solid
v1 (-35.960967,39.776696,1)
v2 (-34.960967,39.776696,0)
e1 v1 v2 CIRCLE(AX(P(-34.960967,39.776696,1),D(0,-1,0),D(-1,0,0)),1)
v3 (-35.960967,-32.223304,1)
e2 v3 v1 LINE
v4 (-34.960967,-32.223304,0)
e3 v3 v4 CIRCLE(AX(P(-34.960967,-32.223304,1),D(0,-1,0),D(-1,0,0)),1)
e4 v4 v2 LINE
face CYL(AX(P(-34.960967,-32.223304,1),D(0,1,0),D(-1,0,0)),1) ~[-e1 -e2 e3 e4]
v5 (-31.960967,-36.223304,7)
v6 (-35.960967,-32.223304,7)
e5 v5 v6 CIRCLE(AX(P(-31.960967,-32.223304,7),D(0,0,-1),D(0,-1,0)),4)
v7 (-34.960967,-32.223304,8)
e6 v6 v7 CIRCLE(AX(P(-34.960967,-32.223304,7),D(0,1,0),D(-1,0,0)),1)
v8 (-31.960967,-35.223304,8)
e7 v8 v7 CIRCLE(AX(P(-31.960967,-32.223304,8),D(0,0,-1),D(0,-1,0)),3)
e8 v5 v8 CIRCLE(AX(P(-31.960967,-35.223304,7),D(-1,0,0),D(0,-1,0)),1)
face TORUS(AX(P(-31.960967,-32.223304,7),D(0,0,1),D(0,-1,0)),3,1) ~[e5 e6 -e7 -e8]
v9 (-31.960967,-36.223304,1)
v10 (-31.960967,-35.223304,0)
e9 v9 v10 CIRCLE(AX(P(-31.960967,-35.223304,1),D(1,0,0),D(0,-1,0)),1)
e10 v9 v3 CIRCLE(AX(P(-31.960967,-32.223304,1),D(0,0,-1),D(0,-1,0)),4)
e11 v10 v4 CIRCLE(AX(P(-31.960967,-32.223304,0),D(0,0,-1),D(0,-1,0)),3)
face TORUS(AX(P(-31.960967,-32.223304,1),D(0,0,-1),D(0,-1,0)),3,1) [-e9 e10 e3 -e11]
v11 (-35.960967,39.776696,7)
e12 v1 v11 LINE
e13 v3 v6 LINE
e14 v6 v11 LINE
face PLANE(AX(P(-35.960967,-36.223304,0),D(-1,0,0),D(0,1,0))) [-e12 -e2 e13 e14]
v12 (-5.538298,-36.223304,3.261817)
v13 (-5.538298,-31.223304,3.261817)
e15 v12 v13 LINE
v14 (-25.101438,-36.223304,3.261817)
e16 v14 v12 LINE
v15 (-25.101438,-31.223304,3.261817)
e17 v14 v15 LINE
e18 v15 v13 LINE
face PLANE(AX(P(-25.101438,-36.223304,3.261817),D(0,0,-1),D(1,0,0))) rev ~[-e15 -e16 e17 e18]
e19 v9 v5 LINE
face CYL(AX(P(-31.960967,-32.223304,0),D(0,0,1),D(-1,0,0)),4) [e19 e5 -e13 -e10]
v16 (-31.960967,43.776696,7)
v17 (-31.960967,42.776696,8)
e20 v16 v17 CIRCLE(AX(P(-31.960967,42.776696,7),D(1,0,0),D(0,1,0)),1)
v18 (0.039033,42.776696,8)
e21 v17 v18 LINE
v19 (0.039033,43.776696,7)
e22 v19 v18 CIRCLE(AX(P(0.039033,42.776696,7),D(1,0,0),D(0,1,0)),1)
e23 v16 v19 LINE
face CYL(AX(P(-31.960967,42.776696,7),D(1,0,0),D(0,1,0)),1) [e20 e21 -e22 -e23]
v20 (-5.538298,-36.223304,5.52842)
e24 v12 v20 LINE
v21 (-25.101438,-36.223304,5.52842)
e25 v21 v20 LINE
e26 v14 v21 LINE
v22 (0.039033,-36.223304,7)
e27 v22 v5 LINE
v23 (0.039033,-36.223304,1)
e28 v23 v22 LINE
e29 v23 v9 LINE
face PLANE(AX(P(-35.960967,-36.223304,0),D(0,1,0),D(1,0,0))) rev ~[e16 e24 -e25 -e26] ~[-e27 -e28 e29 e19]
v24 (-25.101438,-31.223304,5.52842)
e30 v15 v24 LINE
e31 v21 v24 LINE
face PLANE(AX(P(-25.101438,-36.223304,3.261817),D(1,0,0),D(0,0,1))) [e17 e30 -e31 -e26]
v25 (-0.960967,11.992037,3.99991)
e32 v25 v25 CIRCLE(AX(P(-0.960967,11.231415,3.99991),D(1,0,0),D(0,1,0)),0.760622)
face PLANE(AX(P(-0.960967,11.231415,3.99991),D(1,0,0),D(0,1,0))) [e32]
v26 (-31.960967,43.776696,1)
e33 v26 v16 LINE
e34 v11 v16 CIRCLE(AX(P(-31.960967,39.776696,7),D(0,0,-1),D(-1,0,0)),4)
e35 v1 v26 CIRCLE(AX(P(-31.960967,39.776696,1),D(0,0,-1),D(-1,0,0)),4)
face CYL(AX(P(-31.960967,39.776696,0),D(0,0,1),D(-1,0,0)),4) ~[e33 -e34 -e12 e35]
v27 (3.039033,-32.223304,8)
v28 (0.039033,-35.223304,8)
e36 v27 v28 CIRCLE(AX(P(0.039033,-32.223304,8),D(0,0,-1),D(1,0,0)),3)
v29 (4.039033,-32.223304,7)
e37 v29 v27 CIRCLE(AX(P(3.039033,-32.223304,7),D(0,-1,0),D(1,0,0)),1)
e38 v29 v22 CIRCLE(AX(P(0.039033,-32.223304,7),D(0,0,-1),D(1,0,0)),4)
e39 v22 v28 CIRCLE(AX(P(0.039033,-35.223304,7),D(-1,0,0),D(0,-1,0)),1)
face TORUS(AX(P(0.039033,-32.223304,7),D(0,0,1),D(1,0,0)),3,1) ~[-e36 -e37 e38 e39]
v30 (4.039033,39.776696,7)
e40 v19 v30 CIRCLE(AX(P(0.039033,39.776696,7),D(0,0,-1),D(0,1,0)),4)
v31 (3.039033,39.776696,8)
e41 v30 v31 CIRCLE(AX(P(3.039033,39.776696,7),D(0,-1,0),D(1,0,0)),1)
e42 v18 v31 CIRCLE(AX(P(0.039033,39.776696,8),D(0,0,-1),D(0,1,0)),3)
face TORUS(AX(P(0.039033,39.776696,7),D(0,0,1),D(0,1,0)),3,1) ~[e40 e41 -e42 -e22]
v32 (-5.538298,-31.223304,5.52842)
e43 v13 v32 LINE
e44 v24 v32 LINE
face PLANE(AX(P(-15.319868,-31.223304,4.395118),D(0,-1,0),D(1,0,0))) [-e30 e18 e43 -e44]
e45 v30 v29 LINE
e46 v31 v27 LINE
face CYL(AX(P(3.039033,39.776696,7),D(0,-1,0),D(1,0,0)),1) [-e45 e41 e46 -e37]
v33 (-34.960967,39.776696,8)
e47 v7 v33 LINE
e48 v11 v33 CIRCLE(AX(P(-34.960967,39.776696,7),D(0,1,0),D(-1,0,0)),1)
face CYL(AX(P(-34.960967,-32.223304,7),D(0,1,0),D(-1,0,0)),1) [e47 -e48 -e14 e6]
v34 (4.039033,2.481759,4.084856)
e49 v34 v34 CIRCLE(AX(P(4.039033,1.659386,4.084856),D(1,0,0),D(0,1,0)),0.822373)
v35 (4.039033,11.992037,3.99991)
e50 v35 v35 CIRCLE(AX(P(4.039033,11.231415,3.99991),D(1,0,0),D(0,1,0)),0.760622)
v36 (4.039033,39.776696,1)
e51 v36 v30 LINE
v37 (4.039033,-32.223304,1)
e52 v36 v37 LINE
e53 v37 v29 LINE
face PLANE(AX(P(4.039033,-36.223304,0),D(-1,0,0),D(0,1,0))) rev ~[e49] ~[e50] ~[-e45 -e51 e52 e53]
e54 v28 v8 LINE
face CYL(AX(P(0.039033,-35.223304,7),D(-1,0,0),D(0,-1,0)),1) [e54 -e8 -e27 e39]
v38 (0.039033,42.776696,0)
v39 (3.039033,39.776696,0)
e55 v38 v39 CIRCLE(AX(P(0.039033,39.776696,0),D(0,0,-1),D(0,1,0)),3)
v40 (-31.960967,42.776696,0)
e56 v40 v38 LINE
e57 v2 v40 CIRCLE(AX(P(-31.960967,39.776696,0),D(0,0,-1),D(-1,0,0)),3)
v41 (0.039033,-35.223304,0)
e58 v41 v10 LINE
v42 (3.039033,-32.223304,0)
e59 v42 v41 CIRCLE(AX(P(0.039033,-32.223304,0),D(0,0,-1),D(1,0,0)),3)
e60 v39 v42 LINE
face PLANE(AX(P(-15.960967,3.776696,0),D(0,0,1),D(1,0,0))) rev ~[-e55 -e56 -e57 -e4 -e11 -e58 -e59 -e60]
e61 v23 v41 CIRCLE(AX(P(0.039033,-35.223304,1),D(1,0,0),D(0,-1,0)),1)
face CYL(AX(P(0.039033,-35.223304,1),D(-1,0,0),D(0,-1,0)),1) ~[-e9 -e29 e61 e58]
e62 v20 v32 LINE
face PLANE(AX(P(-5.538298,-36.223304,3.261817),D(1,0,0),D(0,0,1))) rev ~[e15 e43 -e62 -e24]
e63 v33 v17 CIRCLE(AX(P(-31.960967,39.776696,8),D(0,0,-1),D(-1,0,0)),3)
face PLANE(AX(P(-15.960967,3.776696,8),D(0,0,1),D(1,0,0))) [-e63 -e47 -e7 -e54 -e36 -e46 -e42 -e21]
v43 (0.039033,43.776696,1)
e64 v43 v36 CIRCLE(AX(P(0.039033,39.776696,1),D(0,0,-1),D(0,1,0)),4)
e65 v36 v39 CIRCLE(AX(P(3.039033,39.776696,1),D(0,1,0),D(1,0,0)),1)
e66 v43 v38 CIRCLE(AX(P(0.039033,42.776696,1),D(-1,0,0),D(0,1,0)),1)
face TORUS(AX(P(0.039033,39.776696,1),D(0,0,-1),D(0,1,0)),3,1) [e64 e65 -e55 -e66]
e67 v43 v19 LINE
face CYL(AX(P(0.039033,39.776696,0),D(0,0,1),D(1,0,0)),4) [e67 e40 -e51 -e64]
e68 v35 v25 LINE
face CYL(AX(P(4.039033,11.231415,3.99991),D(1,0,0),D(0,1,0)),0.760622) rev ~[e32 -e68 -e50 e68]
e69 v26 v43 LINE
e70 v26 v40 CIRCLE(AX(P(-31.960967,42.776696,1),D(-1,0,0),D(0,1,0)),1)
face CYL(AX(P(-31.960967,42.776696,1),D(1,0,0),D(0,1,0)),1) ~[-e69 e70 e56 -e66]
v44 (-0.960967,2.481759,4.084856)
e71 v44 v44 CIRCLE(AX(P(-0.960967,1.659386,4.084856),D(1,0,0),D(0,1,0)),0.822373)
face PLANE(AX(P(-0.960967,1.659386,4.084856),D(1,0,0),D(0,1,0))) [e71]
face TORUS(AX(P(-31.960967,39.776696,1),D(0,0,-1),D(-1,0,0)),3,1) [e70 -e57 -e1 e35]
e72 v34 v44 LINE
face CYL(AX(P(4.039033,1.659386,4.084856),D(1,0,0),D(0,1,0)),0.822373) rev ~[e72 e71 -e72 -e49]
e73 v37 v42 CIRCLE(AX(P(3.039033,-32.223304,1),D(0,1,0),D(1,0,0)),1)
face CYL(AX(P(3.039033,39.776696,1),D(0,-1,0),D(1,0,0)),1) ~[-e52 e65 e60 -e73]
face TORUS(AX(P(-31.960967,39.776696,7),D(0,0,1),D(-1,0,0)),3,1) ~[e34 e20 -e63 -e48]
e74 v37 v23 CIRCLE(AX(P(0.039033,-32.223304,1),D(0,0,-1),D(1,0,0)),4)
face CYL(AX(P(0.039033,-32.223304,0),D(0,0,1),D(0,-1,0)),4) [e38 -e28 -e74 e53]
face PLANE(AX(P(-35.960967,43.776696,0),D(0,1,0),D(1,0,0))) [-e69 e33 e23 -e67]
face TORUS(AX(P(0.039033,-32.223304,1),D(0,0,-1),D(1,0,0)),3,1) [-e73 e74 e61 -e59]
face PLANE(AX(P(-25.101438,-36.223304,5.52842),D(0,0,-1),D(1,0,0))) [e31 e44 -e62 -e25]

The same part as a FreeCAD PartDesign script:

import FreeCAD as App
import Part
import Sketcher

V = App.Vector


def edges_at(feature, points):
    """Names of the edges that pass closest to the given points."""
    edges = feature.Shape.Edges
    near = lambda p: min(range(len(edges)), key=lambda i: edges[i].distToShape(Part.Vertex(*p))[0])
    return sorted({f"Edge{near(p) + 1}" for p in points})


def add_polygon(sketch, points):
    """Adds a closed chain of lines whose ends are joined by coincident constraints."""
    first, n = sketch.GeometryCount, len(points)
    for a, b in zip(points, points[1:] + points[:1]):
        sketch.addGeometry(Part.LineSegment(App.Vector(*a, 0), App.Vector(*b, 0)), False)
    for i in range(n):
        sketch.addConstraint(Sketcher.Constraint("Coincident", first + i, 2, first + (i + 1) % n, 1))

doc = App.newDocument("Part")
body = doc.addObject("PartDesign::Body", "Body")

# Sketch on XY plane
sketch1 = body.newObject("Sketcher::SketchObject", "Sketch")
sketch1.AttachmentSupport = (doc.getObject("XY_Plane"), [""])
sketch1.MapMode = "FlatFace"
add_polygon(sketch1, [(-36, 44), (-36, -36), (4, -36), (4, 44)])  # lines 0-3
sketch1.addConstraint(Sketcher.Constraint("Vertical", 0))
sketch1.addConstraint(Sketcher.Constraint("Horizontal", 1))
sketch1.addConstraint(Sketcher.Constraint("Vertical", 2))
sketch1.addConstraint(Sketcher.Constraint("Horizontal", 3))
sketch1.addConstraint(Sketcher.Constraint("DistanceX", 1, 1, 1, 2, 40.0))
sketch1.addConstraint(Sketcher.Constraint("DistanceY", 0, 2, 0, 1, 80.0))
sketch1.addConstraint(Sketcher.Constraint("DistanceX", 0, 2, -1, 1, 35.960967))
sketch1.addConstraint(Sketcher.Constraint("DistanceY", 0, 2, -1, 1, 36.223304))
pad1 = body.newObject("PartDesign::Pad", "Pad")
pad1.Profile = sketch1
pad1.Length = 8
doc.recompute()

fillet = body.newObject("PartDesign::Fillet", "Fillet")
fillet.Base = (pad1, edges_at(pad1, [
    (4.039, 43.777, 4),
    (4.039, -36.223, 4),
    (-35.961, -36.223, 4),
    (-35.961, 43.777, 4),
]))
fillet.Radius = 4
doc.recompute()

fillet2 = body.newObject("PartDesign::Fillet", "Fillet001")
fillet2.Base = (fillet, edges_at(fillet, [(-35.961, 3.777, 8), (-35.961, 3.777, 0)]))
fillet2.Radius = 1

# Sketch on XZ plane
sketch2 = body.newObject("Sketcher::SketchObject", "Sketch001")
sketch2.AttachmentSupport = (doc.getObject("XZ_Plane"), [""])
sketch2.MapMode = "FlatFace"
sketch2.AttachmentOffset = App.Placement(V(0, 0, 36.223304), App.Rotation())
add_polygon(sketch2, [(-25.1, 5.5), (-25.1, 3.3), (-5.5, 3.3), (-5.5, 5.5)])  # lines 0-3
sketch2.addConstraint(Sketcher.Constraint("Vertical", 0))
sketch2.addConstraint(Sketcher.Constraint("Horizontal", 1))
sketch2.addConstraint(Sketcher.Constraint("Vertical", 2))
sketch2.addConstraint(Sketcher.Constraint("Horizontal", 3))
sketch2.addConstraint(Sketcher.Constraint("DistanceX", 1, 1, 1, 2, 19.56314))
sketch2.addConstraint(Sketcher.Constraint("DistanceX", 1, 2, -1, 1, 5.538298))
sketch2.addConstraint(Sketcher.Constraint("DistanceY", 0, 2, 0, 1, 2.266603))
sketch2.addConstraint(Sketcher.Constraint("DistanceY", -1, 1, 2, 2, 5.52842))
pocket1 = body.newObject("PartDesign::Pocket", "Pocket")
pocket1.Profile = sketch2
pocket1.Length = 5

# Sketch on YZ plane
sketch3 = body.newObject("Sketcher::SketchObject", "Sketch002")
sketch3.AttachmentSupport = (doc.getObject("YZ_Plane"), [""])
sketch3.MapMode = "FlatFace"
sketch3.AttachmentOffset = App.Placement(V(0, 0, 4.039033), App.Rotation())
sketch3.addGeometry(Part.Circle(V(11.2, 4, 0), V(0, 0, 1), 0.8), False)
sketch3.addGeometry(Part.Circle(V(1.7, 4.1, 0), V(0, 0, 1), 0.8), False)
sketch3.addConstraint(Sketcher.Constraint("Diameter", 0, 1.521244))
sketch3.addConstraint(Sketcher.Constraint("Diameter", 1, 1.644746))
sketch3.addConstraint(Sketcher.Constraint("DistanceY", -1, 1, 0, 3, 3.99991))
sketch3.addConstraint(Sketcher.Constraint("DistanceX", 1, 3, 0, 3, 9.572029))
sketch3.addConstraint(Sketcher.Constraint("DistanceX", -1, 1, 0, 3, 11.231415))
sketch3.addConstraint(Sketcher.Constraint("DistanceY", -1, 1, 1, 3, 4.084856))
pocket2 = body.newObject("PartDesign::Pocket", "Pocket001")
pocket2.Profile = sketch3
pocket2.Length = 5

doc.recompute()
